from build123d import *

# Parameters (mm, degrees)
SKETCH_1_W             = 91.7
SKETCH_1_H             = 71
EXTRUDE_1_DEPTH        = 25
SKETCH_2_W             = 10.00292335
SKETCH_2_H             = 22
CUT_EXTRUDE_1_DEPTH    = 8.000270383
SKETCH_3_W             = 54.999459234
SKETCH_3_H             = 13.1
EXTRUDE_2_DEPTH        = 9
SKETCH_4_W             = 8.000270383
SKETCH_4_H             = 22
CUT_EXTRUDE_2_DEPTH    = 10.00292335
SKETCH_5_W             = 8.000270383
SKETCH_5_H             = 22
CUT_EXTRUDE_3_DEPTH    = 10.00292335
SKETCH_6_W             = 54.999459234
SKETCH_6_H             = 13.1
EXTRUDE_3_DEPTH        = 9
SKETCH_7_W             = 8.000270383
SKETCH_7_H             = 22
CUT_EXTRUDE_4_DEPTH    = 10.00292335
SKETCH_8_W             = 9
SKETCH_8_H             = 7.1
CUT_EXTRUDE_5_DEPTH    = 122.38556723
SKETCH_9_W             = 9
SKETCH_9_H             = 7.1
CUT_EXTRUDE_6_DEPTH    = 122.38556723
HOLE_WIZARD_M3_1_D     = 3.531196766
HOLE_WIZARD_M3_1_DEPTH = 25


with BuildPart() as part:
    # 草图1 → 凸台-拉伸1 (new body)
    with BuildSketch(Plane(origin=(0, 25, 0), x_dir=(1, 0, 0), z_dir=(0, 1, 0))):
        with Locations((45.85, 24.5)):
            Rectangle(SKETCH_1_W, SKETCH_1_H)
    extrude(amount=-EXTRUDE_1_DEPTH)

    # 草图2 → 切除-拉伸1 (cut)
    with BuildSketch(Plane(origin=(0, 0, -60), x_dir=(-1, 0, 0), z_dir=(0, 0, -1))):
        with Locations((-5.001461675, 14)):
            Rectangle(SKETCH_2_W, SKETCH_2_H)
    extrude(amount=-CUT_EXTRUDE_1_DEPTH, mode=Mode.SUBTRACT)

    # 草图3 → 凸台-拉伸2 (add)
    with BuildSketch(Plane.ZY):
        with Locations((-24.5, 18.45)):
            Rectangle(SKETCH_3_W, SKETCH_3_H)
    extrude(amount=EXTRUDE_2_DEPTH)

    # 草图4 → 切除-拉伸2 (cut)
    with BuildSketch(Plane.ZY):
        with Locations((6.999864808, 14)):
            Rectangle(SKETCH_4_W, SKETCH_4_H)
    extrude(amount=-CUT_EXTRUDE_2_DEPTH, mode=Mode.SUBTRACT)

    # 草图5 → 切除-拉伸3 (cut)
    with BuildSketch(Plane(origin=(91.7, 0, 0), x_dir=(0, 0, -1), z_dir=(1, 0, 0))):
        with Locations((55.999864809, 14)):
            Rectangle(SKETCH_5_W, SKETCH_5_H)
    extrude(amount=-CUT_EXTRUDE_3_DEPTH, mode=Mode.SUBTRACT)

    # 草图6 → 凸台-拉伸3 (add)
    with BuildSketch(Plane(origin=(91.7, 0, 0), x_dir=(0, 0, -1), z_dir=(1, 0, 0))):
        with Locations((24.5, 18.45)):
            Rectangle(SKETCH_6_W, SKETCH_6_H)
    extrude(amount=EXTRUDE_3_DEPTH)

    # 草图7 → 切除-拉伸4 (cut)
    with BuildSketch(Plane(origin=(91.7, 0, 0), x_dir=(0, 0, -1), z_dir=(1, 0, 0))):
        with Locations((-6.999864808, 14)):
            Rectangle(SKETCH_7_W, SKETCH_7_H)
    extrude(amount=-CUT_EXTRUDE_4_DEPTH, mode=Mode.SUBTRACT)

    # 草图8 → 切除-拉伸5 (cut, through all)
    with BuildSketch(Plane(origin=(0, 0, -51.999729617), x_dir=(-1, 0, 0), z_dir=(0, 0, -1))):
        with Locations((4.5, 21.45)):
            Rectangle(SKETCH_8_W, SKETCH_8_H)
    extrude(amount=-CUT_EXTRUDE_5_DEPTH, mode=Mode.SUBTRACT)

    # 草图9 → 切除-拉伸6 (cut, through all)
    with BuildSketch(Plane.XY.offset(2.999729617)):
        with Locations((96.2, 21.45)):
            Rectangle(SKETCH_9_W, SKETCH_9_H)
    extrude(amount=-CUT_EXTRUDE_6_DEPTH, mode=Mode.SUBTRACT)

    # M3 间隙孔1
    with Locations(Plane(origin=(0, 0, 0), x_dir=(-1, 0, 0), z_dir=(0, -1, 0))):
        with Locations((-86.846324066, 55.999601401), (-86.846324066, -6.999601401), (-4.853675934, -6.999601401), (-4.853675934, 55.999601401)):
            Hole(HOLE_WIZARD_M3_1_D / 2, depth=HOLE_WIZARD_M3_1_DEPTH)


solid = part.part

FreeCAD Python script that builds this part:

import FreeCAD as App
import Part
import Sketcher
from FreeCAD import Vector
Q = App.Units.Quantity

doc = App.newDocument("Part")
body = doc.addObject("PartDesign::Body", "Body")

# Sketch on XZ plane
sketch1 = body.newObject("Sketcher::SketchObject", "Sketch")
sketch1.AttachmentSupport = (doc.getObject("XZ_Plane"), [""])
sketch1.MapMode = "FlatFace"
sketch1.AttachmentOffset = App.Placement(Vector(0, 0, -25), App.Rotation())
sketch1.addGeometry(Part.LineSegment(Vector(0, -60, 0), Vector(0, 11, 0)), False)
sketch1.addGeometry(Part.LineSegment(Vector(0, 11, 0), Vector(92, 11, 0)), False)
sketch1.addGeometry(Part.LineSegment(Vector(92, 11, 0), Vector(92, -60, 0)), False)
sketch1.addGeometry(Part.LineSegment(Vector(92, -60, 0), Vector(0, -60, 0)), False)
sketch1.addConstraint(Sketcher.Constraint("Coincident", 0, 2, 1, 1))
sketch1.addConstraint(Sketcher.Constraint("Coincident", 1, 2, 2, 1))
sketch1.addConstraint(Sketcher.Constraint("Coincident", 2, 2, 3, 1))
sketch1.addConstraint(Sketcher.Constraint("Coincident", 3, 2, 0, 1))
sketch1.addConstraint(Sketcher.Constraint("Vertical", 0))
sketch1.addConstraint(Sketcher.Constraint("Horizontal", 1))
sketch1.addConstraint(Sketcher.Constraint("Vertical", 2))
sketch1.addConstraint(Sketcher.Constraint("Horizontal", 3))
sketch1.addConstraint(Sketcher.Constraint("PointOnObject", 0, 2, -2))
sketch1.addConstraint(Sketcher.Constraint("DistanceY", 0, 1, 0, 2, Q("71 mm")))
sketch1.addConstraint(Sketcher.Constraint("DistanceX", 1, 1, 1, 2, Q("91.7 mm")))
sketch1.addConstraint(Sketcher.Constraint("DistanceY", -1, 1, 0, 2, Q("11 mm")))
pad1 = body.newObject("PartDesign::Pad", "Pad")
pad1.Profile = sketch1
pad1.Length = 25

# Sketch on XY plane
sketch2 = body.newObject("Sketcher::SketchObject", "Sketch001")
sketch2.AttachmentSupport = (doc.getObject("XY_Plane"), [""])
sketch2.MapMode = "FlatFace"
sketch2.AttachmentOffset = App.Placement(Vector(0, 0, -60), App.Rotation())
sketch2.addGeometry(Part.LineSegment(Vector(10, 25, 0), Vector(10, 3, 0)), False)
sketch2.addGeometry(Part.LineSegment(Vector(10, 3, 0), Vector(0, 3, 0)), False)
sketch2.addGeometry(Part.LineSegment(Vector(0, 3, 0), Vector(0, 25, 0)), False)
sketch2.addGeometry(Part.LineSegment(Vector(0, 25, 0), Vector(10, 25, 0)), False)
sketch2.addConstraint(Sketcher.Constraint("Coincident", 0, 2, 1, 1))
sketch2.addConstraint(Sketcher.Constraint("Coincident", 1, 2, 2, 1))
sketch2.addConstraint(Sketcher.Constraint("Coincident", 2, 2, 3, 1))
sketch2.addConstraint(Sketcher.Constraint("Coincident", 3, 2, 0, 1))
sketch2.addConstraint(Sketcher.Constraint("Vertical", 0))
sketch2.addConstraint(Sketcher.Constraint("Horizontal", 1))
sketch2.addConstraint(Sketcher.Constraint("Vertical", 2))
sketch2.addConstraint(Sketcher.Constraint("Horizontal", 3))
sketch2.addConstraint(Sketcher.Constraint("PointOnObject", 1, 2, -2))
sketch2.addConstraint(Sketcher.Constraint("DistanceY", 0, 2, 0, 1, Q("22 mm")))
sketch2.addConstraint(Sketcher.Constraint("DistanceY", -1, 1, 0, 2, Q("3 mm")))
sketch2.addConstraint(Sketcher.Constraint("DistanceX", 1, 2, 1, 1, Q("10.002923 mm")))
pocket1 = body.newObject("PartDesign::Pocket", "Pocket")
pocket1.Profile = sketch2
pocket1.Length = 8.00027
pocket1.Reversed = True

# Sketch on YZ plane
sketch3 = body.newObject("Sketcher::SketchObject", "Sketch002")
sketch3.AttachmentSupport = (doc.getObject("YZ_Plane"), [""])
sketch3.MapMode = "FlatFace"
sketch3.addGeometry(Part.LineSegment(Vector(25, -52, 0), Vector(12, -52, 0)), False)
sketch3.addGeometry(Part.LineSegment(Vector(12, -52, 0), Vector(12, 3, 0)), False)
sketch3.addGeometry(Part.LineSegment(Vector(12, 3, 0), Vector(25, 3, 0)), False)
sketch3.addGeometry(Part.LineSegment(Vector(25, 3, 0), Vector(25, -52, 0)), False)
sketch3.addConstraint(Sketcher.Constraint("Coincident", 0, 2, 1, 1))
sketch3.addConstraint(Sketcher.Constraint("Coincident", 1, 2, 2, 1))
sketch3.addConstraint(Sketcher.Constraint("Coincident", 2, 2, 3, 1))
sketch3.addConstraint(Sketcher.Constraint("Coincident", 3, 2, 0, 1))
sketch3.addConstraint(Sketcher.Constraint("Horizontal", 0))
sketch3.addConstraint(Sketcher.Constraint("Vertical", 1))
sketch3.addConstraint(Sketcher.Constraint("Horizontal", 2))
sketch3.addConstraint(Sketcher.Constraint("Vertical", 3))
sketch3.addConstraint(Sketcher.Constraint("DistanceX", 0, 2, 0, 1, Q("13.1 mm")))
sketch3.addConstraint(Sketcher.Constraint("DistanceX", -1, 1, 2, 2, Q("25 mm")))
sketch3.addConstraint(Sketcher.Constraint("DistanceY", 1, 1, 1, 2, Q("54.999459 mm")))
sketch3.addConstraint(Sketcher.Constraint("DistanceY", 0, 2, -1, 1, Q("51.99973 mm")))
pad2 = body.newObject("PartDesign::Pad", "Pad001")
pad2.Profile = sketch3
pad2.Length = 9
pad2.Reversed = True

# Sketch on YZ plane
sketch4 = body.newObject("Sketcher::SketchObject", "Sketch003")
sketch4.AttachmentSupport = (doc.getObject("YZ_Plane"), [""])
sketch4.MapMode = "FlatFace"
sketch4.addGeometry(Part.LineSegment(Vector(25, 3, 0), Vector(3, 3, 0)), False)
sketch4.addGeometry(Part.LineSegment(Vector(3, 3, 0), Vector(3, 11, 0)), False)
sketch4.addGeometry(Part.LineSegment(Vector(3, 11, 0), Vector(25, 11, 0)), False)
sketch4.addGeometry(Part.LineSegment(Vector(25, 11, 0), Vector(25, 3, 0)), False)
sketch4.addConstraint(Sketcher.Constraint("Coincident", 0, 2, 1, 1))
sketch4.addConstraint(Sketcher.Constraint("Coincident", 1, 2, 2, 1))
sketch4.addConstraint(Sketcher.Constraint("Coincident", 2, 2, 3, 1))
sketch4.addConstraint(Sketcher.Constraint("Coincident", 3, 2, 0, 1))
sketch4.addConstraint(Sketcher.Constraint("Horizontal", 0))
sketch4.addConstraint(Sketcher.Constraint("Vertical", 1))
sketch4.addConstraint(Sketcher.Constraint("Horizontal", 2))
sketch4.addConstraint(Sketcher.Constraint("Vertical", 3))
sketch4.addConstraint(Sketcher.Constraint("DistanceX", 0, 2, 0, 1, Q("22 mm")))
sketch4.addConstraint(Sketcher.Constraint("DistanceX", -1, 1, 0, 2, Q("3 mm")))
sketch4.addConstraint(Sketcher.Constraint("DistanceY", -1, 1, 1, 2, Q("11 mm")))
sketch4.addConstraint(Sketcher.Constraint("DistanceY", 1, 1, 1, 2, Q("8.00027 mm")))
pocket2 = body.newObject("PartDesign::Pocket", "Pocket001")
pocket2.Profile = sketch4
pocket2.Length = 10.002923
pocket2.Reversed = True

# Sketch on YZ plane
sketch5 = body.newObject("Sketcher::SketchObject", "Sketch004")
sketch5.AttachmentSupport = (doc.getObject("YZ_Plane"), [""])
sketch5.MapMode = "FlatFace"
sketch5.AttachmentOffset = App.Placement(Vector(0, 0, 91.7), App.Rotation())
sketch5.addGeometry(Part.LineSegment(Vector(25, -52, 0), Vector(3, -52, 0)), False)
sketch5.addGeometry(Part.LineSegment(Vector(3, -52, 0), Vector(3, -60, 0)), False)
sketch5.addGeometry(Part.LineSegment(Vector(3, -60, 0), Vector(25, -60, 0)), False)
sketch5.addGeometry(Part.LineSegment(Vector(25, -60, 0), Vector(25, -52, 0)), False)
sketch5.addConstraint(Sketcher.Constraint("Coincident", 0, 2, 1, 1))
sketch5.addConstraint(Sketcher.Constraint("Coincident", 1, 2, 2, 1))
sketch5.addConstraint(Sketcher.Constraint("Coincident", 2, 2, 3, 1))
sketch5.addConstraint(Sketcher.Constraint("Coincident", 3, 2, 0, 1))
sketch5.addConstraint(Sketcher.Constraint("Horizontal", 0))
sketch5.addConstraint(Sketcher.Constraint("Vertical", 1))
sketch5.addConstraint(Sketcher.Constraint("Horizontal", 2))
sketch5.addConstraint(Sketcher.Constraint("Vertical", 3))
sketch5.addConstraint(Sketcher.Constraint("DistanceX", 0, 2, 0, 1, Q("22 mm")))
sketch5.addConstraint(Sketcher.Constraint("DistanceX", -1, 1, 0, 2, Q("3 mm")))
sketch5.addConstraint(Sketcher.Constraint("DistanceY", 1, 2, -1, 1, Q("60 mm")))
sketch5.addConstraint(Sketcher.Constraint("DistanceY", 1, 2, 1, 1, Q("8.00027 mm")))
pocket3 = body.newObject("PartDesign::Pocket", "Pocket002")
pocket3.Profile = sketch5
pocket3.Length = 10.002923

# Sketch on YZ plane
sketch6 = body.newObject("Sketcher::SketchObject", "Sketch005")
sketch6.AttachmentSupport = (doc.getObject("YZ_Plane"), [""])
sketch6.MapMode = "FlatFace"
sketch6.AttachmentOffset = App.Placement(Vector(0, 0, 91.7), App.Rotation())
sketch6.addGeometry(Part.LineSegment(Vector(25, 3, 0), Vector(12, 3, 0)), False)
sketch6.addGeometry(Part.LineSegment(Vector(12, 3, 0), Vector(12, -52, 0)), False)
sketch6.addGeometry(Part.LineSegment(Vector(12, -52, 0), Vector(25, -52, 0)), False)
sketch6.addGeometry(Part.LineSegment(Vector(25, -52, 0), Vector(25, 3, 0)), False)
sketch6.addConstraint(Sketcher.Constraint("Coincident", 0, 2, 1, 1))
sketch6.addConstraint(Sketcher.Constraint("Coincident", 1, 2, 2, 1))
sketch6.addConstraint(Sketcher.Constraint("Coincident", 2, 2, 3, 1))
sketch6.addConstraint(Sketcher.Constraint("Coincident", 3, 2, 0, 1))
sketch6.addConstraint(Sketcher.Constraint("Horizontal", 0))
sketch6.addConstraint(Sketcher.Constraint("Vertical", 1))
sketch6.addConstraint(Sketcher.Constraint("Horizontal", 2))
sketch6.addConstraint(Sketcher.Constraint("Vertical", 3))
sketch6.addConstraint(Sketcher.Constraint("DistanceX", 0, 2, 0, 1, Q("13.1 mm")))
sketch6.addConstraint(Sketcher.Constraint("DistanceX", -1, 1, 2, 2, Q("25 mm")))
sketch6.addConstraint(Sketcher.Constraint("DistanceY", 1, 2, 1, 1, Q("54.999459 mm")))
sketch6.addConstraint(Sketcher.Constraint("DistanceY", -1, 1, 0, 2, Q("2.99973 mm")))
pad3 = body.newObject("PartDesign::Pad", "Pad002")
pad3.Profile = sketch6
pad3.Length = 9

# Sketch on YZ plane
sketch7 = body.newObject("Sketcher::SketchObject", "Sketch006")
sketch7.AttachmentSupport = (doc.getObject("YZ_Plane"), [""])
sketch7.MapMode = "FlatFace"
sketch7.AttachmentOffset = App.Placement(Vector(0, 0, 91.7), App.Rotation())
sketch7.addGeometry(Part.LineSegment(Vector(25, 11, 0), Vector(3, 11, 0)), False)
sketch7.addGeometry(Part.LineSegment(Vector(3, 11, 0), Vector(3, 3, 0)), False)
sketch7.addGeometry(Part.LineSegment(Vector(3, 3, 0), Vector(25, 3, 0)), False)
sketch7.addGeometry(Part.LineSegment(Vector(25, 3, 0), Vector(25, 11, 0)), False)
sketch7.addConstraint(Sketcher.Constraint("Coincident", 0, 2, 1, 1))
sketch7.addConstraint(Sketcher.Constraint("Coincident", 1, 2, 2, 1))
sketch7.addConstraint(Sketcher.Constraint("Coincident", 2, 2, 3, 1))
sketch7.addConstraint(Sketcher.Constraint("Coincident", 3, 2, 0, 1))
sketch7.addConstraint(Sketcher.Constraint("Horizontal", 0))
sketch7.addConstraint(Sketcher.Constraint("Vertical", 1))
sketch7.addConstraint(Sketcher.Constraint("Horizontal", 2))
sketch7.addConstraint(Sketcher.Constraint("Vertical", 3))
sketch7.addConstraint(Sketcher.Constraint("DistanceX", 0, 2, 0, 1, Q("22 mm")))
sketch7.addConstraint(Sketcher.Constraint("DistanceX", -1, 1, 0, 2, Q("3 mm")))
sketch7.addConstraint(Sketcher.Constraint("DistanceY", -1, 1, 0, 2, Q("11 mm")))
sketch7.addConstraint(Sketcher.Constraint("DistanceY", 1, 2, 1, 1, Q("8.00027 mm")))
pocket4 = body.newObject("PartDesign::Pocket", "Pocket003")
pocket4.Profile = sketch7
pocket4.Length = 10.002923

# Sketch on XY plane
sketch8 = body.newObject("Sketcher::SketchObject", "Sketch007")
sketch8.AttachmentSupport = (doc.getObject("XY_Plane"), [""])
sketch8.MapMode = "FlatFace"
sketch8.AttachmentOffset = App.Placement(Vector(0, 0, -51.99973), App.Rotation())
sketch8.addGeometry(Part.LineSegment(Vector(0, 25, 0), Vector(0, 18, 0)), False)
sketch8.addGeometry(Part.LineSegment(Vector(0, 18, 0), Vector(-9, 18, 0)), False)
sketch8.addGeometry(Part.LineSegment(Vector(-9, 18, 0), Vector(-9, 25, 0)), False)
sketch8.addGeometry(Part.LineSegment(Vector(-9, 25, 0), Vector(0, 25, 0)), False)
sketch8.addConstraint(Sketcher.Constraint("Coincident", 0, 2, 1, 1))
sketch8.addConstraint(Sketcher.Constraint("Coincident", 1, 2, 2, 1))
sketch8.addConstraint(Sketcher.Constraint("Coincident", 2, 2, 3, 1))
sketch8.addConstraint(Sketcher.Constraint("Coincident", 3, 2, 0, 1))
sketch8.addConstraint(Sketcher.Constraint("Vertical", 0))
sketch8.addConstraint(Sketcher.Constraint("Horizontal", 1))
sketch8.addConstraint(Sketcher.Constraint("Vertical", 2))
sketch8.addConstraint(Sketcher.Constraint("Horizontal", 3))
sketch8.addConstraint(Sketcher.Constraint("PointOnObject", 0, 2, -2))
sketch8.addConstraint(Sketcher.Constraint("DistanceX", 1, 2, 1, 1, Q("9 mm")))
sketch8.addConstraint(Sketcher.Constraint("DistanceY", 0, 2, 0, 1, Q("7.1 mm")))
sketch8.addConstraint(Sketcher.Constraint("DistanceY", -1, 1, 2, 2, Q("25 mm")))
pocket5 = body.newObject("PartDesign::Pocket", "Pocket004")
pocket5.Profile = sketch8
pocket5.Type = "ThroughAll"
pocket5.Reversed = True

# Sketch on XY plane
sketch9 = body.newObject("Sketcher::SketchObject", "Sketch008")
sketch9.AttachmentSupport = (doc.getObject("XY_Plane"), [""])
sketch9.MapMode = "FlatFace"
sketch9.AttachmentOffset = App.Placement(Vector(0, 0, 2.99973), App.Rotation())
sketch9.addGeometry(Part.LineSegment(Vector(92, 25, 0), Vector(92, 18, 0)), False)
sketch9.addGeometry(Part.LineSegment(Vector(92, 18, 0), Vector(101, 18, 0)), False)
sketch9.addGeometry(Part.LineSegment(Vector(101, 18, 0), Vector(101, 25, 0)), False)
sketch9.addGeometry(Part.LineSegment(Vector(101, 25, 0), Vector(92, 25, 0)), False)
sketch9.addConstraint(Sketcher.Constraint("Coincident", 0, 2, 1, 1))
sketch9.addConstraint(Sketcher.Constraint("Coincident", 1, 2, 2, 1))
sketch9.addConstraint(Sketcher.Constraint("Coincident", 2, 2, 3, 1))
sketch9.addConstraint(Sketcher.Constraint("Coincident", 3, 2, 0, 1))
sketch9.addConstraint(Sketcher.Constraint("Vertical", 0))
sketch9.addConstraint(Sketcher.Constraint("Horizontal", 1))
sketch9.addConstraint(Sketcher.Constraint("Vertical", 2))
sketch9.addConstraint(Sketcher.Constraint("Horizontal", 3))
sketch9.addConstraint(Sketcher.Constraint("DistanceX", 1, 1, 1, 2, Q("9 mm")))
sketch9.addConstraint(Sketcher.Constraint("DistanceY", 0, 2, 0, 1, Q("7.1 mm")))
sketch9.addConstraint(Sketcher.Constraint("DistanceY", -1, 1, 2, 2, Q("25 mm")))
sketch9.addConstraint(Sketcher.Constraint("DistanceX", -1, 1, 0, 2, Q("91.7 mm")))
pocket6 = body.newObject("PartDesign::Pocket", "Pocket005")
pocket6.Profile = sketch9
pocket6.Type = "ThroughAll"

# Sketch on XZ plane
sketch10 = body.newObject("Sketcher::SketchObject", "Sketch009")
sketch10.AttachmentSupport = (doc.getObject("XZ_Plane"), [""])
sketch10.MapMode = "FlatFace"
sketch10.addGeometry(Part.Circle(Vector(86.8, -56, 0), Vector(0, 0, 1), 1.8), False)
sketch10.addGeometry(Part.Circle(Vector(86.8, 7, 0), Vector(0, 0, 1), 1.8), False)
sketch10.addGeometry(Part.Circle(Vector(4.9, 7, 0), Vector(0, 0, 1), 1.8), False)
sketch10.addGeometry(Part.Circle(Vector(4.9, -56, 0), Vector(0, 0, 1), 1.8), False)
sketch10.addConstraint(Sketcher.Constraint("Equal", 0, 1))
sketch10.addConstraint(Sketcher.Constraint("Equal", 1, 2))
sketch10.addConstraint(Sketcher.Constraint("Equal", 2, 3))
sketch10.addConstraint(Sketcher.Constraint("Horizontal", 1, 3, 2, 3))
sketch10.addConstraint(Sketcher.Constraint("Horizontal", 0, 3, 3, 3))
sketch10.addConstraint(Sketcher.Constraint("Vertical", 0, 3, 1, 3))
sketch10.addConstraint(Sketcher.Constraint("Vertical", 2, 3, 3, 3))
sketch10.addConstraint(Sketcher.Constraint("Diameter", 0, Q("3.531197 mm")))
sketch10.addConstraint(Sketcher.Constraint("DistanceY", 0, 3, -1, 1, Q("55.999601 mm")))
sketch10.addConstraint(Sketcher.Constraint("DistanceY", -1, 1, 1, 3, Q("6.999601 mm")))
sketch10.addConstraint(Sketcher.Constraint("DistanceX", 2, 3, 1, 3, Q("81.992648 mm")))
sketch10.addConstraint(Sketcher.Constraint("DistanceX", -1, 1, 0, 3, Q("86.846324 mm")))
doc.recompute()
hole = body.newObject("PartDesign::Hole", "Hole")
hole.Profile = sketch10
hole.ThreadType = "None"
hole.Diameter = 3.531197
hole.DepthType = "Dimension"
hole.Depth = 25
hole.DrillPoint = "Flat"

doc.recompute()
